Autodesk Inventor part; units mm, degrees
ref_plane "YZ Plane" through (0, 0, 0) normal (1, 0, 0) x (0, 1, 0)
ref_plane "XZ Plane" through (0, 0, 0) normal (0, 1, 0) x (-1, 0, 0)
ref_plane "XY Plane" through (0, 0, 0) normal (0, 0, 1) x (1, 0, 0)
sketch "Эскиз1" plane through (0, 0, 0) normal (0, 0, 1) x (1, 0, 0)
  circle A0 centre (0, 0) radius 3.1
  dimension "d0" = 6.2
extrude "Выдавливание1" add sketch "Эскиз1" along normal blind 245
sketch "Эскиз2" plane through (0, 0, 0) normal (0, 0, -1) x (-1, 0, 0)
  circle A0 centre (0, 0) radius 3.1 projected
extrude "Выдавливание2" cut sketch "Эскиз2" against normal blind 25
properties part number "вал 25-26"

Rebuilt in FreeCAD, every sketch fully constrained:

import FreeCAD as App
import Part
import Sketcher

doc = App.newDocument("Part")
body = doc.addObject("PartDesign::Body", "Body")

sketch1 = body.newObject("Sketcher::SketchObject", "Sketch")
sketch1.AttachmentSupport = (doc.getObject("XY_Plane"), [""])
sketch1.MapMode = "FlatFace"
sketch1.addGeometry(Part.Circle(App.Vector(0, 0, 0), App.Vector(0, 0, 1), 3.1), False)
sketch1.addConstraint([
    Sketcher.Constraint("Coincident", 0, 3, -1, 1),
    Sketcher.Constraint("Diameter", 0, 6.2),
])
pad1 = body.newObject("PartDesign::Pad", "Pad")
pad1.Profile = sketch1
pad1.Length = 245

sketch2 = body.newObject("Sketcher::SketchObject", "Sketch001")
sketch2.AttachmentSupport = (doc.getObject("XY_Plane"), [""])
sketch2.MapMode = "FlatFace"
sketch2.addGeometry(Part.Circle(App.Vector(0, 0, 0), App.Vector(0, 0, 1), 3.1), False)
sketch2.addConstraint([
    Sketcher.Constraint("Coincident", 0, 3, -1, 1),
    Sketcher.Constraint("Diameter", 0, 6.2),
])
pocket1 = body.newObject("PartDesign::Pocket", "Pocket")
pocket1.Profile = sketch2
pocket1.Length = 25
pocket1.Reversed = True

doc.recompute()
